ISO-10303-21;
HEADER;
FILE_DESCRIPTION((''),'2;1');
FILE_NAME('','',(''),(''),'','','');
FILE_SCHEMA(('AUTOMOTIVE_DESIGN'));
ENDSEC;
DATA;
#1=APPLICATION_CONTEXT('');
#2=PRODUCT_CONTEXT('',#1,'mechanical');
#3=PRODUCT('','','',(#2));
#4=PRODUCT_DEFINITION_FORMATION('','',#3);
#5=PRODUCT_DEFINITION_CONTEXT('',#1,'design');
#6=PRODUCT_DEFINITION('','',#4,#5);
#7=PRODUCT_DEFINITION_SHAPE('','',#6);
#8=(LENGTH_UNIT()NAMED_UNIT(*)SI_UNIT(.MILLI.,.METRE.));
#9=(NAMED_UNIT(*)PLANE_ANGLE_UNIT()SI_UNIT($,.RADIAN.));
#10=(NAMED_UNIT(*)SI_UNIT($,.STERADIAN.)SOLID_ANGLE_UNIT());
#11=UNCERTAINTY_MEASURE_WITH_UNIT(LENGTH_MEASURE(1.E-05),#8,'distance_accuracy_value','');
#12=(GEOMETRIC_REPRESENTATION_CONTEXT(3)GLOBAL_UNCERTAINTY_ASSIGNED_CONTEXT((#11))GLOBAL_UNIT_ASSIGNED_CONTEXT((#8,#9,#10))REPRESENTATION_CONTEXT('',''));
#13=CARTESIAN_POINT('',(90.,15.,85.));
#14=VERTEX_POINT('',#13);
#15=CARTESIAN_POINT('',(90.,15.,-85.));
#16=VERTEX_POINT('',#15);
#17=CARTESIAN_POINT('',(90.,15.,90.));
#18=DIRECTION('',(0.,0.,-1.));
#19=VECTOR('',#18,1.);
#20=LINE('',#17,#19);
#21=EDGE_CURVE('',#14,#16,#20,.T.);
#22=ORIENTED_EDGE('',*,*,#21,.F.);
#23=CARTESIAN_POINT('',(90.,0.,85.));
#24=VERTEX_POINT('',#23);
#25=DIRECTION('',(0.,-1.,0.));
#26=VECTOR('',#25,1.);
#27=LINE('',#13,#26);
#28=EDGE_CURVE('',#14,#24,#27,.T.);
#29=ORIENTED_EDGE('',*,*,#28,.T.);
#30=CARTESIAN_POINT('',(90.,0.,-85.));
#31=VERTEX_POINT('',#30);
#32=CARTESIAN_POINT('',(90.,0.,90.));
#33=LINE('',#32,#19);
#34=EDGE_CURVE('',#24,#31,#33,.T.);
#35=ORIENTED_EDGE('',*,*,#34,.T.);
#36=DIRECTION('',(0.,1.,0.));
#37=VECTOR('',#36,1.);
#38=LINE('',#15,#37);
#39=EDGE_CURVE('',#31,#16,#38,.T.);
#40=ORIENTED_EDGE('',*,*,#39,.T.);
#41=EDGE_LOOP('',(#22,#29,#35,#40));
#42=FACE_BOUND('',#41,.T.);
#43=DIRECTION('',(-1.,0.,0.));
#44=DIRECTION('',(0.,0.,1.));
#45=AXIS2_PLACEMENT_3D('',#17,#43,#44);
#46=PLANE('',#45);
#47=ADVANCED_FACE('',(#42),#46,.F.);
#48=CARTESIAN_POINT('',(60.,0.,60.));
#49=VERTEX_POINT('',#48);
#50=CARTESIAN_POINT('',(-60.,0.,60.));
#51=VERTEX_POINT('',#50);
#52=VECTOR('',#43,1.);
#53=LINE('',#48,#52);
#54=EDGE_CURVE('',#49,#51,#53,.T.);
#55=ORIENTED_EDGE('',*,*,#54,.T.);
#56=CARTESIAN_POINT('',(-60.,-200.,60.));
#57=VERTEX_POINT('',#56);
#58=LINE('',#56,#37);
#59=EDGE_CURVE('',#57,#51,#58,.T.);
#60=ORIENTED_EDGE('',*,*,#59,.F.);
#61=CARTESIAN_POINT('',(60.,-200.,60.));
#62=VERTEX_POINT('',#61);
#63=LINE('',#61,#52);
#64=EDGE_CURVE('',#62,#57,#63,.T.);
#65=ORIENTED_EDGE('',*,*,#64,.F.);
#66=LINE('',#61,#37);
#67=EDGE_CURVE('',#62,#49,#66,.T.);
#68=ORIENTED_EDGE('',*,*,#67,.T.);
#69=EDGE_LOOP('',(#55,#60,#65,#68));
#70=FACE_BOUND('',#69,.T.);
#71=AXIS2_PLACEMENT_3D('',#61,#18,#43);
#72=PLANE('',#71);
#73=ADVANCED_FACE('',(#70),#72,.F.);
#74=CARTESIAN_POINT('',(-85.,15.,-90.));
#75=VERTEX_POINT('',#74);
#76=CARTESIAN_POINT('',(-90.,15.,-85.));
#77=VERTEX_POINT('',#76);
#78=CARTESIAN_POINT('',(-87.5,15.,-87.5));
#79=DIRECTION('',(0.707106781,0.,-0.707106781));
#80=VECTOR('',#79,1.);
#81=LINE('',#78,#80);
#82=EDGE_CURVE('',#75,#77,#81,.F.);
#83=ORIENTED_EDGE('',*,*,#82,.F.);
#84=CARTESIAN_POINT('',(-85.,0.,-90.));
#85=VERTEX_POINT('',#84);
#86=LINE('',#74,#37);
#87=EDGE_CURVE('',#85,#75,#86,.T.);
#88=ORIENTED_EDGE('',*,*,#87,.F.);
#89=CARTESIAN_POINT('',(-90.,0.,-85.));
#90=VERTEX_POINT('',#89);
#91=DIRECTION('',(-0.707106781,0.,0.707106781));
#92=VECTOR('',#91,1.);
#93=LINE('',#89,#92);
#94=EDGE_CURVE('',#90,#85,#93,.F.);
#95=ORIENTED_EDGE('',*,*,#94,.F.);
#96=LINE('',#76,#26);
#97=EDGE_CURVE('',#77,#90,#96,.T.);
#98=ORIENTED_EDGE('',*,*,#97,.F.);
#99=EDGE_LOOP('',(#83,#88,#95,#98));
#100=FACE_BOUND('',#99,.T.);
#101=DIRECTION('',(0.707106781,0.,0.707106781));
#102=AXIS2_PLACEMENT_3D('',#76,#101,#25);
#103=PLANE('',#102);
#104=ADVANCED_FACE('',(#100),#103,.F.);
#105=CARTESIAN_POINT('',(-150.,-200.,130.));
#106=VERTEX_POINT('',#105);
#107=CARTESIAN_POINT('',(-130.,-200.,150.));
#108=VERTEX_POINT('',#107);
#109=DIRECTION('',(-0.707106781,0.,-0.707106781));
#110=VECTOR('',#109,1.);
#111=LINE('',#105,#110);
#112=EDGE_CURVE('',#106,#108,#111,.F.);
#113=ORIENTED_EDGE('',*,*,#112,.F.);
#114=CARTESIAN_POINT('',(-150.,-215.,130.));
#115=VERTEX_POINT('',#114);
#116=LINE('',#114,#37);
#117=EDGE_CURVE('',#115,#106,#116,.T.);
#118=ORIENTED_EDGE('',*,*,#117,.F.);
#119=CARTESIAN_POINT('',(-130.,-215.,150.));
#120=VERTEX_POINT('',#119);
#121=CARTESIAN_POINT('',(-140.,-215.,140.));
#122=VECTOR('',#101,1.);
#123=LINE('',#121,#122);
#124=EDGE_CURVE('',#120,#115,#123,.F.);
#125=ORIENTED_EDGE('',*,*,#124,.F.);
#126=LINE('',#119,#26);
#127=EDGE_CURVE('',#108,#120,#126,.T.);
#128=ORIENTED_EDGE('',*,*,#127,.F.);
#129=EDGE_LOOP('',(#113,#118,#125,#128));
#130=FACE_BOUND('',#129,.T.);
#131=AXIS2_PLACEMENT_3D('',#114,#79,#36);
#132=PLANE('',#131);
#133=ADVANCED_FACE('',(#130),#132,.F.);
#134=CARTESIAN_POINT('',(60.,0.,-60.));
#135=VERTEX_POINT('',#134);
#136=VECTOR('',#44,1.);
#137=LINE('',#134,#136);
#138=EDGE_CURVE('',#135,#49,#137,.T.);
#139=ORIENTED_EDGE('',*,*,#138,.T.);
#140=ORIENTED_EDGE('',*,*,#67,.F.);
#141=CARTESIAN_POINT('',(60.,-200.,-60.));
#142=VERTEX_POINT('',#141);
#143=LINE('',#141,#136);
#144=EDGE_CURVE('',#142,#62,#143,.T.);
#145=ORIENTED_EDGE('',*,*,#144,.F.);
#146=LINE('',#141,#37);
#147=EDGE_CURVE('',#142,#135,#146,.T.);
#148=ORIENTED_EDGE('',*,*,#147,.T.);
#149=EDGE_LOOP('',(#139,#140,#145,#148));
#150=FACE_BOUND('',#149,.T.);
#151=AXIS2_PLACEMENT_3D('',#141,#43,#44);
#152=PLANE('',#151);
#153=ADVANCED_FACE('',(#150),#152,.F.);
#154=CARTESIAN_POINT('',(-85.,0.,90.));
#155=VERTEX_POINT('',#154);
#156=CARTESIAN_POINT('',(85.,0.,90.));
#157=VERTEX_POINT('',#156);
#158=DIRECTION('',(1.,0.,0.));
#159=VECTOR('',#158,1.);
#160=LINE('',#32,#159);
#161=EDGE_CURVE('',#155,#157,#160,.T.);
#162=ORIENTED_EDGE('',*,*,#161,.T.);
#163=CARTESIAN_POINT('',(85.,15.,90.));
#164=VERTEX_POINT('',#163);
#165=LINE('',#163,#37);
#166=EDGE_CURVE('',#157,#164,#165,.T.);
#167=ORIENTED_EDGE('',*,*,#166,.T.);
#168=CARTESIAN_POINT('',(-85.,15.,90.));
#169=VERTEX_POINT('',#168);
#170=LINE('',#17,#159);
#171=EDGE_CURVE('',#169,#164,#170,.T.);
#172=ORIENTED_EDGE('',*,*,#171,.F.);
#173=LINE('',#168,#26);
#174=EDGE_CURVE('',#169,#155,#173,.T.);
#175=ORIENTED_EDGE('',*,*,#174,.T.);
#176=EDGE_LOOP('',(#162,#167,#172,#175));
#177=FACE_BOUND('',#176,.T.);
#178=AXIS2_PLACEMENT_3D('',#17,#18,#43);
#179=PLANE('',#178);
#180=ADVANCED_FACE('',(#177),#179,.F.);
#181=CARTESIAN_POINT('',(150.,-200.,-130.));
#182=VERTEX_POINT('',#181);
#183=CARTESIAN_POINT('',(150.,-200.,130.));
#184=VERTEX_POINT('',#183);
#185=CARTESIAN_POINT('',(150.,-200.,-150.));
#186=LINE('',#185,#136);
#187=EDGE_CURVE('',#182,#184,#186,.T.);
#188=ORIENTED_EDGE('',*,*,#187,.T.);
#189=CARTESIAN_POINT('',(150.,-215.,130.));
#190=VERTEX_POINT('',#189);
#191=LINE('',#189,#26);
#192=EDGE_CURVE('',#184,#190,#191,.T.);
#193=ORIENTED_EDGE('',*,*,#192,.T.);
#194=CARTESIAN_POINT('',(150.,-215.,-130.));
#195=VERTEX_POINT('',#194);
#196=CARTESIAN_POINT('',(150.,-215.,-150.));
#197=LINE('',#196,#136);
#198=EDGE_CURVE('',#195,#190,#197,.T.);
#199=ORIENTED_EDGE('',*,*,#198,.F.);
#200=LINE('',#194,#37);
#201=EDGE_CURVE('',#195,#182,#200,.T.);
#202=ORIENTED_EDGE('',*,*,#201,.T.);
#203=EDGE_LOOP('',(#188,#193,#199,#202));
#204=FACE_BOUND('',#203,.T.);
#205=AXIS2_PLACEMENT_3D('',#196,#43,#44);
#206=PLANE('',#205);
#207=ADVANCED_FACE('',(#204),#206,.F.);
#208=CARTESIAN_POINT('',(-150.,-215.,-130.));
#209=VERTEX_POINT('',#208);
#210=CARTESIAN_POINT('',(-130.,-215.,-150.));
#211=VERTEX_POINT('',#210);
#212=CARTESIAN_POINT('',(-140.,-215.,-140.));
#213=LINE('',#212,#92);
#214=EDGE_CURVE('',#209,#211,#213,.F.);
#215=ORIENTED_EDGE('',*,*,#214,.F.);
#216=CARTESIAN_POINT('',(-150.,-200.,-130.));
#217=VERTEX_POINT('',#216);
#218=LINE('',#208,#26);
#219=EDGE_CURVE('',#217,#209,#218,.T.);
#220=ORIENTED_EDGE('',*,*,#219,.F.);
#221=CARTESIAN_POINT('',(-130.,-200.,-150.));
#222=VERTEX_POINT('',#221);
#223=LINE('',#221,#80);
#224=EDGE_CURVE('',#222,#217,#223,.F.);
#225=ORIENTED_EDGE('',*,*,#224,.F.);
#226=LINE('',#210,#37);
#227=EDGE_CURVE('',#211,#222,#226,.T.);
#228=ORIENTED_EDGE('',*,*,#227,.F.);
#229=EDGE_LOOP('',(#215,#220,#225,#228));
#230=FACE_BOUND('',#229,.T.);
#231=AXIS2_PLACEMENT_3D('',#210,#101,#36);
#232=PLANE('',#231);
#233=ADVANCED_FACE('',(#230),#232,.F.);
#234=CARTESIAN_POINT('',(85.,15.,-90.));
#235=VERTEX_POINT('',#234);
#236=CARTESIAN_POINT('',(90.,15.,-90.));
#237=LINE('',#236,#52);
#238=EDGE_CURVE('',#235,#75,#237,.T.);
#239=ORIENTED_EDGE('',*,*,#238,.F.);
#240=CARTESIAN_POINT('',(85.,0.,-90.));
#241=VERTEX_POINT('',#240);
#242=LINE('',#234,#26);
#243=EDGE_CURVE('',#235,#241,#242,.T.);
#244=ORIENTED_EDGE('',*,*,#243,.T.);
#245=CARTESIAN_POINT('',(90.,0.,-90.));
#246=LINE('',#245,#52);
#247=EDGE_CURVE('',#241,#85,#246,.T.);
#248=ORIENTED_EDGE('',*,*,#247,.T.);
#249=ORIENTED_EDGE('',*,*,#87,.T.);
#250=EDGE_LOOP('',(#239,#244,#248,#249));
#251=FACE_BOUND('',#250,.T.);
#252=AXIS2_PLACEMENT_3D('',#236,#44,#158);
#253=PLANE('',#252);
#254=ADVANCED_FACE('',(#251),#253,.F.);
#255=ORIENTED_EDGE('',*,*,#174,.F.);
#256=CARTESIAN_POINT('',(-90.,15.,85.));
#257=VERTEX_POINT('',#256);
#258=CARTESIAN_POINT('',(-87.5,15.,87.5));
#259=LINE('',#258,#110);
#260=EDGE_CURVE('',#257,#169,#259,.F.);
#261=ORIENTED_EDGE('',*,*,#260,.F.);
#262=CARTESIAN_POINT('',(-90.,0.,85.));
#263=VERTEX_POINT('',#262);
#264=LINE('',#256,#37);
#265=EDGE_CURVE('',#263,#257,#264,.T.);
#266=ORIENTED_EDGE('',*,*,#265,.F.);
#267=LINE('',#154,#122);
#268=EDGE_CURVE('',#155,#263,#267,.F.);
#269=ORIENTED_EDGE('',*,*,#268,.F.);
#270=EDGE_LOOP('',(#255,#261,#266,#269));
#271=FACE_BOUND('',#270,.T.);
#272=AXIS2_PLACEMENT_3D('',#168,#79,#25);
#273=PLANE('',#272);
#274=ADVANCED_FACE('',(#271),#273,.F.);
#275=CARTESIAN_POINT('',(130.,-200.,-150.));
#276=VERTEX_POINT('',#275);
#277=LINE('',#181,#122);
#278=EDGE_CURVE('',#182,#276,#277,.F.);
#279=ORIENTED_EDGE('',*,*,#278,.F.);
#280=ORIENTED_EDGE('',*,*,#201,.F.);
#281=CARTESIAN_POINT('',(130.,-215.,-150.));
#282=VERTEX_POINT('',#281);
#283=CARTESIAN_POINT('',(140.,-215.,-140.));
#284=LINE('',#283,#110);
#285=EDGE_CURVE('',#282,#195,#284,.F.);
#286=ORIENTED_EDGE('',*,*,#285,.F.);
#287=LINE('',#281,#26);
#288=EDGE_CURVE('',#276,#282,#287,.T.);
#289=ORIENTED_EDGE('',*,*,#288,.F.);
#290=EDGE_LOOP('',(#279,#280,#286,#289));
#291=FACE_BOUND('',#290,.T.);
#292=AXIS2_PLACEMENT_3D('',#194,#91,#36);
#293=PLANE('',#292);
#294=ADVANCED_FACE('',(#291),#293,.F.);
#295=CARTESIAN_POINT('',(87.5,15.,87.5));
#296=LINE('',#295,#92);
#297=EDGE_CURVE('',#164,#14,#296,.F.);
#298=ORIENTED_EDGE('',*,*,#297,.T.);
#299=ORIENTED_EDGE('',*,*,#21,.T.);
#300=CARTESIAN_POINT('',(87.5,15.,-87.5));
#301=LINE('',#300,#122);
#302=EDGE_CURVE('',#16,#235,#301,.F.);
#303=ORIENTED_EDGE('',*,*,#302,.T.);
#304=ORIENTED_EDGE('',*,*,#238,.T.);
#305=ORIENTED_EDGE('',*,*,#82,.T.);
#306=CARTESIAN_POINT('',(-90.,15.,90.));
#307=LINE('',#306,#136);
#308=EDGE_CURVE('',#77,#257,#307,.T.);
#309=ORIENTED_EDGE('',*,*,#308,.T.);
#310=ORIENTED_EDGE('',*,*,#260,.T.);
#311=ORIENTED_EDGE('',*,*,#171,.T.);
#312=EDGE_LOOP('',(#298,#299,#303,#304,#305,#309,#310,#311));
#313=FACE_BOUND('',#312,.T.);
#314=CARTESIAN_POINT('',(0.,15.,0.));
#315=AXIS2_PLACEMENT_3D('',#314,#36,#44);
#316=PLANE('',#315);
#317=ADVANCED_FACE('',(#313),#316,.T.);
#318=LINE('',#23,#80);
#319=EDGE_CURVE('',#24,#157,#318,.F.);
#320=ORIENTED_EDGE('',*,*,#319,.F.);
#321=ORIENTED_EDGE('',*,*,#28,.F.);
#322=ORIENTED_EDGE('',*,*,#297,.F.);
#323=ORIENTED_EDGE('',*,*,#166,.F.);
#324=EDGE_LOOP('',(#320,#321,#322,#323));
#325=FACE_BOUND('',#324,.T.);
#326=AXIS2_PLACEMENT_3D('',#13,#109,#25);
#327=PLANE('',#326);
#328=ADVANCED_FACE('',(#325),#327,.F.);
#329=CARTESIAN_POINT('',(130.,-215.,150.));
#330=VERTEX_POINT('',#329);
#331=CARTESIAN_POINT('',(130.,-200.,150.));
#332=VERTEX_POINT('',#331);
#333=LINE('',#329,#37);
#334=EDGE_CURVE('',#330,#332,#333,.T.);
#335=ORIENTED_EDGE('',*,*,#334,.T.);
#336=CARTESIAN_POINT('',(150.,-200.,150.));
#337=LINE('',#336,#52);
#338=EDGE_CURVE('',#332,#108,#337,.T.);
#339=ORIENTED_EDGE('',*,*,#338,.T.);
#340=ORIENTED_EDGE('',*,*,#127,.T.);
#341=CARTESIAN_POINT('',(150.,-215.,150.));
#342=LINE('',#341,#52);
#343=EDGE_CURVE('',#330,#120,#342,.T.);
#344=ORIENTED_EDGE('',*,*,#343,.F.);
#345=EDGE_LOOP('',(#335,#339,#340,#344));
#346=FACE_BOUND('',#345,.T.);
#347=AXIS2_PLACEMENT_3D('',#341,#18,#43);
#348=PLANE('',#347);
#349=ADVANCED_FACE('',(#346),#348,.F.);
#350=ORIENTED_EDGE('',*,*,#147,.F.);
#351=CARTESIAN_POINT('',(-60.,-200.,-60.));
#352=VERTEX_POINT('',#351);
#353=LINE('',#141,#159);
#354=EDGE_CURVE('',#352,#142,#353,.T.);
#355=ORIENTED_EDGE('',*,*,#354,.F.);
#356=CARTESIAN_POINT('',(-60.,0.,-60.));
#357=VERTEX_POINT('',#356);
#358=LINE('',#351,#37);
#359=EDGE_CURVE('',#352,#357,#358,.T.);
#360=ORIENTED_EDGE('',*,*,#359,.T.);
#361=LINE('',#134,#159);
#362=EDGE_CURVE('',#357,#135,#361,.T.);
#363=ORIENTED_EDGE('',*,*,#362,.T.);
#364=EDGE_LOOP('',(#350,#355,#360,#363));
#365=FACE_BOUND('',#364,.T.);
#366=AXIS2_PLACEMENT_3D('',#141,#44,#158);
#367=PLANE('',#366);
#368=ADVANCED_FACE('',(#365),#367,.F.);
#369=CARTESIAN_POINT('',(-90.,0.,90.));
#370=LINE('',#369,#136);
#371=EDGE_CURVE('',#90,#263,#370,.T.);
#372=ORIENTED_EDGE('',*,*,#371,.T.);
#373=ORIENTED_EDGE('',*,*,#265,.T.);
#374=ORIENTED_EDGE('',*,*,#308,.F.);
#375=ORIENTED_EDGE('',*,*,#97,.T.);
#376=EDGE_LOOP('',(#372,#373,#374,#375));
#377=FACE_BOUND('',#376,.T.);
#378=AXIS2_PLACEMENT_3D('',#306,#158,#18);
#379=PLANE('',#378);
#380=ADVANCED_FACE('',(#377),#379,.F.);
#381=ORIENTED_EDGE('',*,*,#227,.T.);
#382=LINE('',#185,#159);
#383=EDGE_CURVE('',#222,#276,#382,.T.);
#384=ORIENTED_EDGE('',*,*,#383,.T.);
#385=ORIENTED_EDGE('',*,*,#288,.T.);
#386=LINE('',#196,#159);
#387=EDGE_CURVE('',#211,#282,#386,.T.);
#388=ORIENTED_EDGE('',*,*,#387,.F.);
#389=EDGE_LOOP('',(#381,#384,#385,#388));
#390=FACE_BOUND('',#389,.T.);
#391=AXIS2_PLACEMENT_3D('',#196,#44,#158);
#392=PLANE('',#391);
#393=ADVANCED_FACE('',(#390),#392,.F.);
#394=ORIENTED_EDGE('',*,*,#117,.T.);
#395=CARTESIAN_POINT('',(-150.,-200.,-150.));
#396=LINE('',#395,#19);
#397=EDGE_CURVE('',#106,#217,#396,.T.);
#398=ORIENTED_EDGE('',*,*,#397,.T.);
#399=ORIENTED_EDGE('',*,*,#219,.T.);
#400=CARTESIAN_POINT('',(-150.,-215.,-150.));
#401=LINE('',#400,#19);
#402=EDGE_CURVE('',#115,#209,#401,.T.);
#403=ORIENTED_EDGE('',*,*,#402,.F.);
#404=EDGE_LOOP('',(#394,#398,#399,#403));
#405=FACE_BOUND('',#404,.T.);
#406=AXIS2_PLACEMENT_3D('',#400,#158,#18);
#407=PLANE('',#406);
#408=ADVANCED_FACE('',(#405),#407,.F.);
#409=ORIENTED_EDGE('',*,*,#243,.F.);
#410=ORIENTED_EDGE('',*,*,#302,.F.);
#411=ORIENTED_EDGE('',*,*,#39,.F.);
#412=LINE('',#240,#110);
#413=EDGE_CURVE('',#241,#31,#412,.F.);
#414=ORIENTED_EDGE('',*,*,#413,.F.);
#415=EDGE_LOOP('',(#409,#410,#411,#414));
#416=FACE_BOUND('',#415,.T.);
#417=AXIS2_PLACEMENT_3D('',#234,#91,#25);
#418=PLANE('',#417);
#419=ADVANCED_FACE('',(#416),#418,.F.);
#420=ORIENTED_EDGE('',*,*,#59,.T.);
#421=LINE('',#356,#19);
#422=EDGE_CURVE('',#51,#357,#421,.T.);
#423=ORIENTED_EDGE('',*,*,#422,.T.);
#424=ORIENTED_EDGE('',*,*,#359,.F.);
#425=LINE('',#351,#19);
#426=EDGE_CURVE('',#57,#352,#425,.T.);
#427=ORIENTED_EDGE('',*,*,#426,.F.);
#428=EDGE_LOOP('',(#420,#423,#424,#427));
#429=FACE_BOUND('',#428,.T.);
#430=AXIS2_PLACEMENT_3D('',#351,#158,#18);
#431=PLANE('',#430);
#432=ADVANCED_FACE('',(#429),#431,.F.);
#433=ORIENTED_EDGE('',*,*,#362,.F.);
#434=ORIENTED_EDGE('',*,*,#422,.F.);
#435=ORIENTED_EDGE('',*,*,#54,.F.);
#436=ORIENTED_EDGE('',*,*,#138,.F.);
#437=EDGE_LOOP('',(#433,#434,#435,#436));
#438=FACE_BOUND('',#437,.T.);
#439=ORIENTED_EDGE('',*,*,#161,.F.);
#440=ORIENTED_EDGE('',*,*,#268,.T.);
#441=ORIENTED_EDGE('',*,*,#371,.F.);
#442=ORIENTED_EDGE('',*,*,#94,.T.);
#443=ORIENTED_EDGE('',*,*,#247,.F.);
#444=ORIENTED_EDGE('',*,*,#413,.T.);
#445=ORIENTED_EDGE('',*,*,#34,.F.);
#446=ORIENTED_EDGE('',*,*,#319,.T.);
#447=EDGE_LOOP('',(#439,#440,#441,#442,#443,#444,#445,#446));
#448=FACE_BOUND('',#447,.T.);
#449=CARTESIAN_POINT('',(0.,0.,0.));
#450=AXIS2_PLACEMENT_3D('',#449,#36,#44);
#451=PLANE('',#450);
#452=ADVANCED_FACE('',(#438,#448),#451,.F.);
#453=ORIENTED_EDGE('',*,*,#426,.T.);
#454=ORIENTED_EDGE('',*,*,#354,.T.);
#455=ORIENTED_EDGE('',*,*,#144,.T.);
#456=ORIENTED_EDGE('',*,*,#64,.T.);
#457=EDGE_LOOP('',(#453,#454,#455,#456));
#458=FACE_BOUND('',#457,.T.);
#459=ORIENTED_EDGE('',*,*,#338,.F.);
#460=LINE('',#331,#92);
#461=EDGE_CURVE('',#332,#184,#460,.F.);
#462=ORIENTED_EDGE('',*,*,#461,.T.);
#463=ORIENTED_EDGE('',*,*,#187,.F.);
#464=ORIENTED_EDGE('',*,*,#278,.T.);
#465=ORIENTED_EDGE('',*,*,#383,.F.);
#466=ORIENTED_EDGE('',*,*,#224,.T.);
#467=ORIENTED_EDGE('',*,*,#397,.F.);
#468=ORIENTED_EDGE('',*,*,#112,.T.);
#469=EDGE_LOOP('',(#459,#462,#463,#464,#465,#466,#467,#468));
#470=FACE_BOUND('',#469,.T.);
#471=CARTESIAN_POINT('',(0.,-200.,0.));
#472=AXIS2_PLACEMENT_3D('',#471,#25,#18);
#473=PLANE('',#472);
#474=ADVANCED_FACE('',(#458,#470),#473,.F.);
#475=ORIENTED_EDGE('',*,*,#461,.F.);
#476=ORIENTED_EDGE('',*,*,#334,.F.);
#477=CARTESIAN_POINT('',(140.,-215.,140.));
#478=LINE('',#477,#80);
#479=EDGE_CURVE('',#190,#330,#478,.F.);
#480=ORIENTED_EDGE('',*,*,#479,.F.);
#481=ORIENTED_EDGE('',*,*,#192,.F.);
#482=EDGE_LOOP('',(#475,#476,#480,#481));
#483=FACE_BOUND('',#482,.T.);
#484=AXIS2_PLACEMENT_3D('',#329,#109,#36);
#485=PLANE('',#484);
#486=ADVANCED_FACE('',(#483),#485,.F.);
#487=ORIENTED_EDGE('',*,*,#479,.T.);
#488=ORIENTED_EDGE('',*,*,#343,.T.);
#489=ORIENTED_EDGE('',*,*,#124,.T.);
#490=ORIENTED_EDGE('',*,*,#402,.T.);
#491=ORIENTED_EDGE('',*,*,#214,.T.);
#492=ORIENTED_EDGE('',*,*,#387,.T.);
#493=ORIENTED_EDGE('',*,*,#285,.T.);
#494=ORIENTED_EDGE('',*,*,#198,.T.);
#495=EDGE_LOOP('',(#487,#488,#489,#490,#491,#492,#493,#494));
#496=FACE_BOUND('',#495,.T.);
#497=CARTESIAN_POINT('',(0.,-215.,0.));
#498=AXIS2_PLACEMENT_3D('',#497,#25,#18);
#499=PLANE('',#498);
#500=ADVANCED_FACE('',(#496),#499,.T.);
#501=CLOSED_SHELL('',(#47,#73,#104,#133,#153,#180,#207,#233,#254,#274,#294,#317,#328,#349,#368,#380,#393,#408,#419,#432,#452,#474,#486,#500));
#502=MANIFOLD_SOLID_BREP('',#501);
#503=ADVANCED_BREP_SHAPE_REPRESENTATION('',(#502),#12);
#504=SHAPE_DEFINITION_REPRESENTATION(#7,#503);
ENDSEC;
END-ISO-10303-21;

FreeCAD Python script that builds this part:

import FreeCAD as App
import Part
import Sketcher


def edges_at(feature, points):
    """Names of the edges that pass closest to the given points."""
    edges = feature.Shape.Edges
    near = lambda p: min(range(len(edges)), key=lambda i: edges[i].distToShape(Part.Vertex(*p))[0])
    return sorted({f"Edge{near(p) + 1}" for p in points})


def add_polygon(sketch, points):
    """Adds a closed chain of lines whose ends are joined by coincident constraints."""
    first, n = sketch.GeometryCount, len(points)
    for a, b in zip(points, points[1:] + points[:1]):
        sketch.addGeometry(Part.LineSegment(App.Vector(*a, 0), App.Vector(*b, 0)), False)
    for i in range(n):
        sketch.addConstraint(Sketcher.Constraint("Coincident", first + i, 2, first + (i + 1) % n, 1))

doc = App.newDocument("Part")
body = doc.addObject("PartDesign::Body", "Body")

# Sketch on XZ plane
sketch1 = doc.addObject("Sketcher::SketchObject", "Sketch")
body.addObject(sketch1)
sketch1.AttachmentSupport = (doc.XZ_Plane, [""])
sketch1.MapMode = "FlatFace"
add_polygon(sketch1, [(-90, -90), (-90, 90), (90, 90), (90, -90)])  # lines 0-3
sketch1.addConstraint([
    Sketcher.Constraint("Vertical", 0),
    Sketcher.Constraint("Horizontal", 1),
    Sketcher.Constraint("Vertical", 2),
    Sketcher.Constraint("Horizontal", 3),
    Sketcher.Constraint("Symmetric", 0, 2, 2, 2, -1, 1),
    Sketcher.Constraint("Equal", 3, 0),
    Sketcher.Constraint("DistanceX", 1, 1, 1, 2, 180.0),
])
pad1 = doc.addObject("PartDesign::Pad", "Pad")
body.addObject(pad1)
pad1.Profile = sketch1
pad1.Length = 15
pad1.Reversed = True

# Sketch on XZ plane
sketch2 = doc.addObject("Sketcher::SketchObject", "Sketch001")
body.addObject(sketch2)
sketch2.AttachmentSupport = (doc.XZ_Plane, [""])
sketch2.MapMode = "FlatFace"
add_polygon(sketch2, [(-60, 60), (-60, -60), (60, -60), (60, 60)])  # lines 0-3
sketch2.addConstraint([
    Sketcher.Constraint("Vertical", 0),
    Sketcher.Constraint("Horizontal", 1),
    Sketcher.Constraint("Vertical", 2),
    Sketcher.Constraint("Horizontal", 3),
    Sketcher.Constraint("Symmetric", 0, 2, 2, 2, -1, 1),
    Sketcher.Constraint("Equal", 3, 0),
    Sketcher.Constraint("DistanceX", 1, 1, 1, 2, 120.0),
])
pad2 = doc.addObject("PartDesign::Pad", "Pad001")
body.addObject(pad2)
pad2.Profile = sketch2
pad2.Length = 200

# Sketch on XZ plane
sketch3 = doc.addObject("Sketcher::SketchObject", "Sketch002")
body.addObject(sketch3)
sketch3.AttachmentSupport = (doc.XZ_Plane, [""])
sketch3.MapMode = "FlatFace"
sketch3.AttachmentOffset = App.Placement(App.Vector(0, 0, 200), App.Rotation())
add_polygon(sketch3, [(-150, 150), (-150, -150), (150, -150), (150, 150)])  # lines 0-3
sketch3.addConstraint([
    Sketcher.Constraint("Vertical", 0),
    Sketcher.Constraint("Horizontal", 1),
    Sketcher.Constraint("Vertical", 2),
    Sketcher.Constraint("Horizontal", 3),
    Sketcher.Constraint("Symmetric", 0, 2, 2, 2, -1, 1),
    Sketcher.Constraint("Equal", 3, 0),
    Sketcher.Constraint("DistanceX", 1, 1, 1, 2, 300.0),
])
pad3 = doc.addObject("PartDesign::Pad", "Pad002")
body.addObject(pad3)
pad3.Profile = sketch3
pad3.Length = 15
doc.recompute()

chamfer = doc.addObject("PartDesign::Chamfer", "Chamfer")
body.addObject(chamfer)
chamfer.Base = (pad3, edges_at(pad3, [
    (-150, -207.5, 150),
    (-150, -207.5, -150),
    (150, -207.5, -150),
    (150, -207.5, 150),
]))
chamfer.Size = 20
doc.recompute()

chamfer2 = doc.addObject("PartDesign::Chamfer", "Chamfer001")
body.addObject(chamfer2)
chamfer2.Base = (chamfer, edges_at(chamfer, [
    (-90, 7.5, -90),
    (90, 7.5, -90),
    (90, 7.5, 90),
    (-90, 7.5, 90),
]))
chamfer2.Size = 5

doc.recompute()
